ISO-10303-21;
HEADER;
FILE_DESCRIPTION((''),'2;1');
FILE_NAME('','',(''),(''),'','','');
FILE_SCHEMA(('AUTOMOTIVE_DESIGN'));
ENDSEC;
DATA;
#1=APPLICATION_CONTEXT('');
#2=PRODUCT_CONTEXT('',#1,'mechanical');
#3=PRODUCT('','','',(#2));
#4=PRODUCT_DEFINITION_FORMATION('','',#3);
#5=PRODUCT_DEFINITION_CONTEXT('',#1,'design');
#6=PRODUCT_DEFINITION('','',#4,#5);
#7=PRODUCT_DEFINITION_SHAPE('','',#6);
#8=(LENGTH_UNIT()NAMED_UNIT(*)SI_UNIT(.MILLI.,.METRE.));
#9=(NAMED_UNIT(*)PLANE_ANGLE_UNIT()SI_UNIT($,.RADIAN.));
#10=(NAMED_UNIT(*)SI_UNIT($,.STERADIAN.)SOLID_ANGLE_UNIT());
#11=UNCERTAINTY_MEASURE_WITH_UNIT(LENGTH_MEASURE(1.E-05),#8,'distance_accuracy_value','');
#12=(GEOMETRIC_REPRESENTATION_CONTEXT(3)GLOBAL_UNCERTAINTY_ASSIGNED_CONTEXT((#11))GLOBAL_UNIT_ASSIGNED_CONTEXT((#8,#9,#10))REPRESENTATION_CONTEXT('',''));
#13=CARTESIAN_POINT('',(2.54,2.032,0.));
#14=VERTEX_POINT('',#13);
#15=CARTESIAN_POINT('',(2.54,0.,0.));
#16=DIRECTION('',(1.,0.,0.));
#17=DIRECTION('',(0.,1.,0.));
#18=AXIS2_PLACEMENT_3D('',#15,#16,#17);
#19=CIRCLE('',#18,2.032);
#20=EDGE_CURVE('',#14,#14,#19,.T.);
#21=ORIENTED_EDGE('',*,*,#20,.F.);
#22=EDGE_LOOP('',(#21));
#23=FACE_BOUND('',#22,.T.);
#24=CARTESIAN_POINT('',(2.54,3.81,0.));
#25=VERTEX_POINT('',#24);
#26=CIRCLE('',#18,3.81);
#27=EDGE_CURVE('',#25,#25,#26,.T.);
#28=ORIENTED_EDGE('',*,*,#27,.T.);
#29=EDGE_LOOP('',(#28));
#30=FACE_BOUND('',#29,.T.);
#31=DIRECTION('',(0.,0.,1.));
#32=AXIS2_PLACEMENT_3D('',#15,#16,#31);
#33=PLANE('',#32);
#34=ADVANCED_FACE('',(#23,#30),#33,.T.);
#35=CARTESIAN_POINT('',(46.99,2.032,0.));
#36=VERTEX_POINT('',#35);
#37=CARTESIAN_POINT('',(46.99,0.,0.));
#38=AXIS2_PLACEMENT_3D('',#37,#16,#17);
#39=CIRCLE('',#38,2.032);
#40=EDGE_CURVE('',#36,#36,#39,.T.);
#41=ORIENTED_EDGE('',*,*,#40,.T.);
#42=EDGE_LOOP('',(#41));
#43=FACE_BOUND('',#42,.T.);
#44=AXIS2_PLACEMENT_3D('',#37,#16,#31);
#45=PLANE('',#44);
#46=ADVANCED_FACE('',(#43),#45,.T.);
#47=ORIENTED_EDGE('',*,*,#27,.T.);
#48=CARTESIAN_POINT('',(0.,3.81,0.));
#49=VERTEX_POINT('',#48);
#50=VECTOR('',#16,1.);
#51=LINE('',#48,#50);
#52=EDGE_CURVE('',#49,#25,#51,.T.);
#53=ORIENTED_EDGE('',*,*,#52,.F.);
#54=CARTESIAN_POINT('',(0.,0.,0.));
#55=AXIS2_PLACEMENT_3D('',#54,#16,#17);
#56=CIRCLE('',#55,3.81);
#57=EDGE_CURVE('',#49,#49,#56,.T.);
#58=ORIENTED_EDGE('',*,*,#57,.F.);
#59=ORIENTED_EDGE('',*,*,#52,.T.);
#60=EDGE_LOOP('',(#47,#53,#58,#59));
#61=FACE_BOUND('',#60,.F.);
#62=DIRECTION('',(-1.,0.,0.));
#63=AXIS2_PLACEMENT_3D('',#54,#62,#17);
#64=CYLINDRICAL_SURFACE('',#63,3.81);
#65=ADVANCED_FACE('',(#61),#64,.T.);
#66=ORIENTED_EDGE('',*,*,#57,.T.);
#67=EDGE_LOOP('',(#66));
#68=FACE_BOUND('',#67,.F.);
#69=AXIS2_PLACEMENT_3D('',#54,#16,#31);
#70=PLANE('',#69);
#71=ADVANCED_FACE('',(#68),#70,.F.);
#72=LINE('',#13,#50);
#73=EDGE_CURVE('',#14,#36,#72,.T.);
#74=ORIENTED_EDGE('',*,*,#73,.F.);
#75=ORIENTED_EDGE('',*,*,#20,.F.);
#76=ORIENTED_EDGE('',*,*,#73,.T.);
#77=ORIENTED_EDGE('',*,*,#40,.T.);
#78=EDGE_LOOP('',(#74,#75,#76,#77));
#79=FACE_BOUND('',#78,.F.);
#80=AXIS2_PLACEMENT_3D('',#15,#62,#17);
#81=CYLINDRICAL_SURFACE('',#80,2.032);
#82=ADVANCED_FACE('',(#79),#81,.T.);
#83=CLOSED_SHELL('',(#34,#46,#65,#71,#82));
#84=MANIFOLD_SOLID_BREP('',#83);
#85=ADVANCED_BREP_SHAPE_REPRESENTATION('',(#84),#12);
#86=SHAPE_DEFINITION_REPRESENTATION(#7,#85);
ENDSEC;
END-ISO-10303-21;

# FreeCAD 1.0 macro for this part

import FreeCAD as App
import Part
import Sketcher
Q = App.Units.Quantity

doc = App.newDocument("Part")
body = doc.addObject("PartDesign::Body", "Body")

sketch1 = body.newObject("Sketcher::SketchObject", "Sketch")
sketch1.AttachmentSupport = (doc.getObject("YZ_Plane"), [""])
sketch1.MapMode = "FlatFace"
sketch1.addGeometry(Part.Circle(App.Vector(0, 0, 0), App.Vector(0, 0, 1), 3.81), False)
sketch1.addConstraint(Sketcher.Constraint("Coincident", 0, 3, -1, 1))
sketch1.addConstraint(Sketcher.Constraint("Diameter", 0, Q("0.3 in")))
pad1 = body.newObject("PartDesign::Pad", "Pad")
pad1.Profile = sketch1
pad1.Length = Q("0.1 in")

sketch2 = body.newObject("Sketcher::SketchObject", "Sketch001")
sketch2.AttachmentSupport = (doc.getObject("YZ_Plane"), [""])
sketch2.MapMode = "FlatFace"
sketch2.AttachmentOffset = App.Placement(App.Vector(0, 0, 0.1 * 25.4), App.Rotation())
sketch2.addGeometry(Part.Circle(App.Vector(0, 0, 0), App.Vector(0, 0, 1), 2.032), False)
sketch2.addConstraint(Sketcher.Constraint("Coincident", 0, 3, -1, 1))
sketch2.addConstraint(Sketcher.Constraint("Diameter", 0, Q("0.16 in")))
pad2 = body.newObject("PartDesign::Pad", "Pad001")
pad2.Profile = sketch2
pad2.Length = Q("1.75 in")

doc.recompute()
